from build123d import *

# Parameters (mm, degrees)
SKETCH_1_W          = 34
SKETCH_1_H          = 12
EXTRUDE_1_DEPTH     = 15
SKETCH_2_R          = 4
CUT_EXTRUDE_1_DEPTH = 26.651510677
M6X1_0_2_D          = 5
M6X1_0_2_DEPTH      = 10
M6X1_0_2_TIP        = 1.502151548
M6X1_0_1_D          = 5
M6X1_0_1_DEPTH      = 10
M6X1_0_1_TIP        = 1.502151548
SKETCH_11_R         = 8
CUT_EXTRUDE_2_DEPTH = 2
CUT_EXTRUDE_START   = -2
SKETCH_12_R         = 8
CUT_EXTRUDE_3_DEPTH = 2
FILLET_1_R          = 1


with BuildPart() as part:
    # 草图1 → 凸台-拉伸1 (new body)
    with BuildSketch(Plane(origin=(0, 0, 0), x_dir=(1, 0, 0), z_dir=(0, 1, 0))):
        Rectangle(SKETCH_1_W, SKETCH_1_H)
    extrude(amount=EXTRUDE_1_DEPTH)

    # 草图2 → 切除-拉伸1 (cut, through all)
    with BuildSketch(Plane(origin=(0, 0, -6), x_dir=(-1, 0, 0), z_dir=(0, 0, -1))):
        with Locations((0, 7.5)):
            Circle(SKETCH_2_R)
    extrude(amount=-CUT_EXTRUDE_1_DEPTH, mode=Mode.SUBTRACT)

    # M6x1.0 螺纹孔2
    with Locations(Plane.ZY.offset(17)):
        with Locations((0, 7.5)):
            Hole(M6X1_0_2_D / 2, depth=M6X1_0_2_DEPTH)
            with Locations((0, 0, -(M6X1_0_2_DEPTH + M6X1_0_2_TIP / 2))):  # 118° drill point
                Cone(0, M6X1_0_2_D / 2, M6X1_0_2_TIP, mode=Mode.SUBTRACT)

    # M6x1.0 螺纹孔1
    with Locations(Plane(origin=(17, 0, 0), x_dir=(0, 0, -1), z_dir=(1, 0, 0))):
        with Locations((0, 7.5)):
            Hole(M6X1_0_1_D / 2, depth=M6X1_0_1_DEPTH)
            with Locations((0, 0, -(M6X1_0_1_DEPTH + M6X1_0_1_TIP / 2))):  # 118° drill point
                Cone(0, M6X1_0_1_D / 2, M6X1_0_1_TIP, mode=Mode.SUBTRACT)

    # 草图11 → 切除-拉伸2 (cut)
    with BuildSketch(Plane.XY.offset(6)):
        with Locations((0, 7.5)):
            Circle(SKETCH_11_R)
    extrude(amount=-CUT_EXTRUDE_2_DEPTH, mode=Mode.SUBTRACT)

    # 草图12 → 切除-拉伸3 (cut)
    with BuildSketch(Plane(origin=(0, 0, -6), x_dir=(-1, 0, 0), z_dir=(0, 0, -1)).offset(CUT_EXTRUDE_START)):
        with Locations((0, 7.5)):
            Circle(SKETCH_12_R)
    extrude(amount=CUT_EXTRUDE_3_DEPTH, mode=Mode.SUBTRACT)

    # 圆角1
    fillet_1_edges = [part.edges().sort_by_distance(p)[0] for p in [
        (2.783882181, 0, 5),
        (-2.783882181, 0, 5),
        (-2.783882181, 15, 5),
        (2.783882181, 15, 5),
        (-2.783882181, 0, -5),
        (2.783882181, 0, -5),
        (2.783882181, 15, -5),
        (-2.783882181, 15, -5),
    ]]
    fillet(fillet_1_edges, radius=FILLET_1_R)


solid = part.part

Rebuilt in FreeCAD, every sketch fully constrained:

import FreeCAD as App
import Part
import Sketcher
Q = App.Units.Quantity


def edges_at(feature, points):
    """Names of the edges that pass closest to the given points."""
    edges = feature.Shape.Edges
    near = lambda p: min(range(len(edges)), key=lambda i: edges[i].distToShape(Part.Vertex(*p))[0])
    return sorted({f"Edge{near(p) + 1}" for p in points})

doc = App.newDocument("Part")
body = doc.addObject("PartDesign::Body", "Body")

sketch1 = body.newObject("Sketcher::SketchObject", "Sketch")
sketch1.AttachmentSupport = (doc.getObject("XZ_Plane"), [""])
sketch1.MapMode = "FlatFace"
sketch1.addGeometry([
    Part.LineSegment(App.Vector(-17, -6, 0), App.Vector(-17, 6, 0)),
    Part.LineSegment(App.Vector(-17, 6, 0), App.Vector(17, 6, 0)),
    Part.LineSegment(App.Vector(17, 6, 0), App.Vector(17, -6, 0)),
    Part.LineSegment(App.Vector(17, -6, 0), App.Vector(-17, -6, 0)),
], False)
sketch1.addConstraint([
    Sketcher.Constraint("Coincident", 0, 2, 1, 1),
    Sketcher.Constraint("Coincident", 1, 2, 2, 1),
    Sketcher.Constraint("Coincident", 2, 2, 3, 1),
    Sketcher.Constraint("Coincident", 3, 2, 0, 1),
    Sketcher.Constraint("Vertical", 0),
    Sketcher.Constraint("Horizontal", 1),
    Sketcher.Constraint("Vertical", 2),
    Sketcher.Constraint("Horizontal", 3),
    Sketcher.Constraint("Symmetric", 0, 2, 2, 2, -1, 1),
    Sketcher.Constraint("DistanceX", 1, 1, 1, 2, Q("34 mm")),
    Sketcher.Constraint("DistanceY", 0, 1, 0, 2, Q("12 mm")),
])
pad1 = body.newObject("PartDesign::Pad", "Pad")
pad1.Profile = sketch1
pad1.Length = 15
pad1.Reversed = True

sketch2 = body.newObject("Sketcher::SketchObject", "Sketch001")
sketch2.AttachmentSupport = (doc.getObject("XY_Plane"), [""])
sketch2.MapMode = "FlatFace"
sketch2.AttachmentOffset = App.Placement(App.Vector(0, 0, -6), App.Rotation())
sketch2.addGeometry(Part.Circle(App.Vector(0, 7.5, 0), App.Vector(0, 0, 1), 4), False)
sketch2.addConstraint([
    Sketcher.Constraint("PointOnObject", 0, 3, -2),
    Sketcher.Constraint("Diameter", 0, Q("8 mm")),
    Sketcher.Constraint("DistanceY", -1, 1, 0, 3, Q("7.5 mm")),
])
pocket1 = body.newObject("PartDesign::Pocket", "Pocket")
pocket1.Profile = sketch2
pocket1.Type = "ThroughAll"
pocket1.Reversed = True

sketch3 = body.newObject("Sketcher::SketchObject", "Sketch002")
sketch3.AttachmentSupport = (doc.getObject("YZ_Plane"), [""])
sketch3.MapMode = "FlatFace"
sketch3.AttachmentOffset = App.Placement(App.Vector(0, 0, -17), App.Rotation())
sketch3.addGeometry(Part.Circle(App.Vector(7.5, 0, 0), App.Vector(0, 0, 1), 2.5), False)
sketch3.addConstraint([
    Sketcher.Constraint("PointOnObject", 0, 3, -1),
    Sketcher.Constraint("Diameter", 0, Q("5 mm")),
    Sketcher.Constraint("DistanceX", -1, 1, 0, 3, Q("7.5 mm")),
])
doc.recompute()
hole = body.newObject("PartDesign::Hole", "Hole")
hole.Profile = sketch3
hole.ThreadType = "None"
hole.Diameter = 5
hole.DepthType = "Dimension"
hole.Depth = 10
hole.DrillPoint = "Angled"
hole.DrillPointAngle = 118
hole.Reversed = True

sketch4 = body.newObject("Sketcher::SketchObject", "Sketch003")
sketch4.AttachmentSupport = (doc.getObject("YZ_Plane"), [""])
sketch4.MapMode = "FlatFace"
sketch4.AttachmentOffset = App.Placement(App.Vector(0, 0, 17), App.Rotation())
sketch4.addGeometry(Part.Circle(App.Vector(7.5, 0, 0), App.Vector(0, 0, 1), 2.5), False)
sketch4.addConstraint([
    Sketcher.Constraint("PointOnObject", 0, 3, -1),
    Sketcher.Constraint("Diameter", 0, Q("5 mm")),
    Sketcher.Constraint("DistanceX", -1, 1, 0, 3, Q("7.5 mm")),
])
doc.recompute()
hole2 = body.newObject("PartDesign::Hole", "Hole001")
hole2.Profile = sketch4
hole2.ThreadType = "None"
hole2.Diameter = 5
hole2.DepthType = "Dimension"
hole2.Depth = 10
hole2.DrillPoint = "Angled"
hole2.DrillPointAngle = 118

sketch5 = body.newObject("Sketcher::SketchObject", "Sketch004")
sketch5.AttachmentSupport = (doc.getObject("XY_Plane"), [""])
sketch5.MapMode = "FlatFace"
sketch5.AttachmentOffset = App.Placement(App.Vector(0, 0, 6), App.Rotation())
sketch5.addGeometry(Part.Circle(App.Vector(0, 8, 0), App.Vector(0, 0, 1), 8), False)
sketch5.addConstraint([
    Sketcher.Constraint("PointOnObject", 0, 3, -2),
    Sketcher.Constraint("Diameter", 0, Q("16 mm")),
    Sketcher.Constraint("DistanceY", -1, 1, 0, 3, Q("7.5 mm")),
])
pocket2 = body.newObject("PartDesign::Pocket", "Pocket001")
pocket2.Profile = sketch5
pocket2.Length = 2

sketch6 = body.newObject("Sketcher::SketchObject", "Sketch005")
sketch6.AttachmentSupport = (doc.getObject("XY_Plane"), [""])
sketch6.MapMode = "FlatFace"
sketch6.AttachmentOffset = App.Placement(App.Vector(0, 0, -4), App.Rotation())
sketch6.addGeometry(Part.Circle(App.Vector(0, 8, 0), App.Vector(0, 0, 1), 8), False)
sketch6.addConstraint([
    Sketcher.Constraint("PointOnObject", 0, 3, -2),
    Sketcher.Constraint("Diameter", 0, Q("16 mm")),
    Sketcher.Constraint("DistanceY", -1, 1, 0, 3, Q("7.5 mm")),
])
pocket3 = body.newObject("PartDesign::Pocket", "Pocket002")
pocket3.Profile = sketch6
pocket3.Length = 2
doc.recompute()

fillet = body.newObject("PartDesign::Fillet", "Fillet")
fillet.Base = (pocket3, edges_at(pocket3, [
    (2.784, 0, 5),
    (-2.784, 0, 5),
    (-2.784, 15, 5),
    (2.784, 15, 5),
    (-2.784, 0, -5),
    (2.784, 0, -5),
    (2.784, 15, -5),
    (-2.784, 15, -5),
]))
fillet.Radius = 1

doc.recompute()
